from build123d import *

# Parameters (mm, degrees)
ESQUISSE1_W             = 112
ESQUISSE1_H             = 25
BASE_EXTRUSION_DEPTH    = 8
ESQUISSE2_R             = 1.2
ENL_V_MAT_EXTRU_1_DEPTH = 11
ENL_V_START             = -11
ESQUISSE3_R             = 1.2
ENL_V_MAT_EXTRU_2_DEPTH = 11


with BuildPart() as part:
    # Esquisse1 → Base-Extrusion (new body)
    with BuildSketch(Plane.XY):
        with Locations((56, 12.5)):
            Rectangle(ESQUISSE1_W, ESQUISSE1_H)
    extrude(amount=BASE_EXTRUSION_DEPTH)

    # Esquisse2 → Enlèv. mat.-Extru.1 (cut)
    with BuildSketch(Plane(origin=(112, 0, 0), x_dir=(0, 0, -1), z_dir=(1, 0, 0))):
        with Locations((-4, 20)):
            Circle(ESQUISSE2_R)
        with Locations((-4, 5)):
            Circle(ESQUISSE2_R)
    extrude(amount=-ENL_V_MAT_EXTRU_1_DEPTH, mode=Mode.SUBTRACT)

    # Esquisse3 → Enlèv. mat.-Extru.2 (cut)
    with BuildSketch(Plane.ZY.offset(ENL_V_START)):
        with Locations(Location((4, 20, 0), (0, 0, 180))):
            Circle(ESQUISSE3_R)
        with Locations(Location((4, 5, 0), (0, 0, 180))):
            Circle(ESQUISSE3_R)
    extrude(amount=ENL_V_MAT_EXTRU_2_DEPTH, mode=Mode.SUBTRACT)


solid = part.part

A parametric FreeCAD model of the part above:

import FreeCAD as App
import Part
import Sketcher
Q = App.Units.Quantity

doc = App.newDocument("Part")
params = doc.addObject("Spreadsheet::Sheet", "Params")
for row, (alias, value) in enumerate([
    ("sketch1_width", "112 mm"),
    ("sketch1_height", "25 mm"),
    ("pad1_length", "8 mm"),
    ("sketch2_diameter", "2.4 mm"),
    ("pocket1_length", "11 mm"),
    ("sketch3_diameter", "2.4 mm"),
    ("pocket2_length", "11 mm"),
], start=1):
    params.set(f"A{row}", alias)
    params.set(f"B{row}", "=" + value)
    params.setAlias(f"B{row}", alias)

body = doc.addObject("PartDesign::Body", "Body")

sketch1 = body.newObject("Sketcher::SketchObject", "Sketch")
sketch1.AttachmentSupport = (doc.getObject("XY_Plane"), [""])
sketch1.MapMode = "FlatFace"
sketch1.addGeometry(Part.LineSegment(App.Vector(0, 25, 0), App.Vector(0, 0, 0)), False)
sketch1.addGeometry(Part.LineSegment(App.Vector(0, 0, 0), App.Vector(112, 0, 0)), False)
sketch1.addGeometry(Part.LineSegment(App.Vector(112, 0, 0), App.Vector(112, 25, 0)), False)
sketch1.addGeometry(Part.LineSegment(App.Vector(112, 25, 0), App.Vector(0, 25, 0)), False)
sketch1.addConstraint(Sketcher.Constraint("Coincident", 0, 2, 1, 1))
sketch1.addConstraint(Sketcher.Constraint("Coincident", 1, 2, 2, 1))
sketch1.addConstraint(Sketcher.Constraint("Coincident", 2, 2, 3, 1))
sketch1.addConstraint(Sketcher.Constraint("Coincident", 3, 2, 0, 1))
sketch1.addConstraint(Sketcher.Constraint("Vertical", 0))
sketch1.addConstraint(Sketcher.Constraint("Horizontal", 1))
sketch1.addConstraint(Sketcher.Constraint("Vertical", 2))
sketch1.addConstraint(Sketcher.Constraint("Horizontal", 3))
sketch1.addConstraint(Sketcher.Constraint("Coincident", 0, 2, -1, 1))
sketch1.addConstraint(Sketcher.Constraint("DistanceX", 1, 1, 1, 2, Q("112 mm")))
sketch1.addConstraint(Sketcher.Constraint("DistanceY", 0, 2, 0, 1, Q("25 mm")))
sketch1.setExpression("Constraints[9]", "Params.sketch1_width")
sketch1.setExpression("Constraints[10]", "Params.sketch1_height")
pad1 = body.newObject("PartDesign::Pad", "Pad")
pad1.Profile = sketch1
pad1.setExpression("Length", "Params.pad1_length")

sketch2 = body.newObject("Sketcher::SketchObject", "Sketch001")
sketch2.AttachmentSupport = (doc.getObject("YZ_Plane"), [""])
sketch2.MapMode = "FlatFace"
sketch2.AttachmentOffset = App.Placement(App.Vector(0, 0, 112), App.Rotation())
sketch2.addGeometry(Part.Circle(App.Vector(20, 4, 0), App.Vector(0, 0, 1), 1.2), False)
sketch2.addGeometry(Part.Circle(App.Vector(5, 4, 0), App.Vector(0, 0, 1), 1.2), False)
sketch2.addConstraint(Sketcher.Constraint("Equal", 0, 1))
sketch2.addConstraint(Sketcher.Constraint("Horizontal", 0, 3, 1, 3))
sketch2.addConstraint(Sketcher.Constraint("Diameter", 0, Q("2.4 mm")))
sketch2.addConstraint(Sketcher.Constraint("DistanceX", -1, 1, 0, 3, Q("20 mm")))
sketch2.addConstraint(Sketcher.Constraint("DistanceY", -1, 1, 0, 3, Q("4 mm")))
sketch2.addConstraint(Sketcher.Constraint("DistanceX", -1, 1, 1, 3, Q("5 mm")))
sketch2.setExpression("Constraints[2]", "Params.sketch2_diameter")
pocket1 = body.newObject("PartDesign::Pocket", "Pocket")
pocket1.Profile = sketch2
pocket1.setExpression("Length", "Params.pocket1_length")

sketch3 = body.newObject("Sketcher::SketchObject", "Sketch002")
sketch3.AttachmentSupport = (doc.getObject("YZ_Plane"), [""])
sketch3.MapMode = "FlatFace"
sketch3.AttachmentOffset = App.Placement(App.Vector(0, 0, 11), App.Rotation())
sketch3.addGeometry(Part.Circle(App.Vector(20, 4, 0), App.Vector(0, 0, 1), 1.2), False)
sketch3.addGeometry(Part.Circle(App.Vector(5, 4, 0), App.Vector(0, 0, 1), 1.2), False)
sketch3.addConstraint(Sketcher.Constraint("Equal", 0, 1))
sketch3.addConstraint(Sketcher.Constraint("Horizontal", 0, 3, 1, 3))
sketch3.addConstraint(Sketcher.Constraint("Diameter", 0, Q("2.4 mm")))
sketch3.addConstraint(Sketcher.Constraint("DistanceX", -1, 1, 0, 3, Q("20 mm")))
sketch3.addConstraint(Sketcher.Constraint("DistanceY", -1, 1, 0, 3, Q("4 mm")))
sketch3.addConstraint(Sketcher.Constraint("DistanceX", -1, 1, 1, 3, Q("5 mm")))
sketch3.setExpression("Constraints[2]", "Params.sketch3_diameter")
pocket2 = body.newObject("PartDesign::Pocket", "Pocket001")
pocket2.Profile = sketch3
pocket2.setExpression("Length", "Params.pocket2_length")

doc.recompute()
